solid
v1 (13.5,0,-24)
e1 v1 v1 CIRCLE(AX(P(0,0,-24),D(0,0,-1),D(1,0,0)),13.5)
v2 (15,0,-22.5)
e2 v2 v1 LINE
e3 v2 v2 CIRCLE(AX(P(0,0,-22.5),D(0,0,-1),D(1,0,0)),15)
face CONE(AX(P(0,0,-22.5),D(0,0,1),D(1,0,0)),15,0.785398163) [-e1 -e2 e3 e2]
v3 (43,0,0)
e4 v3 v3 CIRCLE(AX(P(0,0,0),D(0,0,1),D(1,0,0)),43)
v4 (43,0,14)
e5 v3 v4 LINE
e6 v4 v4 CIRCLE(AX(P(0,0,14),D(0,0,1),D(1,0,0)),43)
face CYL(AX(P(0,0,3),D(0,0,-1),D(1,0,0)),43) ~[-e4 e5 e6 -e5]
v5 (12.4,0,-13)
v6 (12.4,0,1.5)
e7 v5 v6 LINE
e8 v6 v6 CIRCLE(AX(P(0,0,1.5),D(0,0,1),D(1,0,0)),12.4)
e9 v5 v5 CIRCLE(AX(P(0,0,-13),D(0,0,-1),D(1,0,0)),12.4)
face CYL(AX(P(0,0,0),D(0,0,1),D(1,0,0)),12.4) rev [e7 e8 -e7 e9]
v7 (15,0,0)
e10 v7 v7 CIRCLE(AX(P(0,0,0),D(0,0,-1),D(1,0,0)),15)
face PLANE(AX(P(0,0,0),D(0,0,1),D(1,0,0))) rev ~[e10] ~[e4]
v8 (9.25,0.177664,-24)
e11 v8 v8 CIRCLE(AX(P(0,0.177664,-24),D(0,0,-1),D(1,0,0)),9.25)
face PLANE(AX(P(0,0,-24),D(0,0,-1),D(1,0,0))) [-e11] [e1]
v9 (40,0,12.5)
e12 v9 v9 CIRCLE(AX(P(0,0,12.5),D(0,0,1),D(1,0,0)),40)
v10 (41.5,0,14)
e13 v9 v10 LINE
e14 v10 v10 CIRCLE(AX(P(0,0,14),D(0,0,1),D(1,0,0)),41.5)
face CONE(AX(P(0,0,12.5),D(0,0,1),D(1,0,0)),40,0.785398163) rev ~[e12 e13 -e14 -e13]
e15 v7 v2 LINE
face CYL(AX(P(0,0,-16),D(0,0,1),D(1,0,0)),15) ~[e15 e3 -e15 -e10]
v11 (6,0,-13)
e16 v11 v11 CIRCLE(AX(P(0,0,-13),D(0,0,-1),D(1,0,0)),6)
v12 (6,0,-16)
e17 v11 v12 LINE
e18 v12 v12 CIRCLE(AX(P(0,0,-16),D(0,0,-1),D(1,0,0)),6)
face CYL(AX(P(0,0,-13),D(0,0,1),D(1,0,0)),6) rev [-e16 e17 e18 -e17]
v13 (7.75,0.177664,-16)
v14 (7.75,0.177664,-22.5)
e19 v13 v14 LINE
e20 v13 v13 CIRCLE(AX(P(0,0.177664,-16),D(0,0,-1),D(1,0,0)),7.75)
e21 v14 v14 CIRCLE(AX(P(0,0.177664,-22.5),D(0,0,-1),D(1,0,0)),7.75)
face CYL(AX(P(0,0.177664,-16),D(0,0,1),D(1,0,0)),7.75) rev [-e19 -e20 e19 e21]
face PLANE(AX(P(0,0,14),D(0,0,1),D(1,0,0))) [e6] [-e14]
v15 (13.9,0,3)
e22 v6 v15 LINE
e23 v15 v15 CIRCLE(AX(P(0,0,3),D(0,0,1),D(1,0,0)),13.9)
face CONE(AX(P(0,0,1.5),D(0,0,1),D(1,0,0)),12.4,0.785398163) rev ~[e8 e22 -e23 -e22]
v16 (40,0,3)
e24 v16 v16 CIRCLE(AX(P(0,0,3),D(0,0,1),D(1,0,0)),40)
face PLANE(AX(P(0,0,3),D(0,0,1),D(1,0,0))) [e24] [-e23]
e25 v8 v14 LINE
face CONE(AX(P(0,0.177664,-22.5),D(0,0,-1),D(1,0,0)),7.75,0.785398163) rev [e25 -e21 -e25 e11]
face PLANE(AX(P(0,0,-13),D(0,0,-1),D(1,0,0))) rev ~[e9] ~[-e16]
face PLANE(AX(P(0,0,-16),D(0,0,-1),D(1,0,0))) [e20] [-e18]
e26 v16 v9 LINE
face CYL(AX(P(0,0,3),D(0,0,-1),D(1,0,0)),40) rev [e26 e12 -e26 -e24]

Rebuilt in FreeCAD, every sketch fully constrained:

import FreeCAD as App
import Part
import Sketcher

V = App.Vector
Q = App.Units.Quantity


def edges_at(feature, points):
    """Names of the edges that pass closest to the given points."""
    edges = feature.Shape.Edges
    near = lambda p: min(range(len(edges)), key=lambda i: edges[i].distToShape(Part.Vertex(*p))[0])
    return sorted({f"Edge{near(p) + 1}" for p in points})

doc = App.newDocument("Part")
body = doc.addObject("PartDesign::Body", "Body")

sketch1 = body.newObject("Sketcher::SketchObject", "Sketch")
sketch1.AttachmentSupport = (doc.getObject("XY_Plane"), [""])
sketch1.MapMode = "FlatFace"
sketch1.addGeometry(Part.Circle(V(0, 0, 0), V(0, 0, 1), 43), False)
sketch1.addConstraint([
    Sketcher.Constraint("Coincident", 0, 3, -1, 1),
    Sketcher.Constraint("Diameter", 0, Q("86 mm")),
])
pad1 = body.newObject("PartDesign::Pad", "Pad")
pad1.Profile = sketch1
pad1.Length = 3

sketch2 = body.newObject("Sketcher::SketchObject", "Sketch001")
sketch2.AttachmentSupport = (doc.getObject("XY_Plane"), [""])
sketch2.MapMode = "FlatFace"
sketch2.AttachmentOffset = App.Placement(V(0, 0, 3), App.Rotation())
sketch2.addGeometry([
    Part.Circle(V(0, 0, 0), V(0, 0, 1), 43),
    Part.Circle(V(0, 0, 0), V(0, 0, 1), 40),
], False)
sketch2.addConstraint([
    Sketcher.Constraint("Coincident", 0, 3, -1, 1),
    Sketcher.Constraint("Coincident", 1, 3, -1, 1),
    Sketcher.Constraint("Diameter", 0, Q("86 mm")),
    Sketcher.Constraint("Diameter", 1, Q("80 mm")),
])
pad2 = body.newObject("PartDesign::Pad", "Pad001")
pad2.Profile = sketch2
pad2.Length = 11

sketch3 = body.newObject("Sketcher::SketchObject", "Sketch002")
sketch3.AttachmentSupport = (doc.getObject("XY_Plane"), [""])
sketch3.MapMode = "FlatFace"
sketch3.AttachmentOffset = App.Placement(V(0, 0, 3), App.Rotation())
sketch3.addGeometry(Part.Circle(V(0, 0, 0), V(0, 0, 1), 12), False)
sketch3.addConstraint([
    Sketcher.Constraint("Coincident", 0, 3, -1, 1),
    Sketcher.Constraint("Diameter", 0, Q("24.8 mm")),
])
pocket1 = body.newObject("PartDesign::Pocket", "Pocket")
pocket1.Profile = sketch3
pocket1.Length = 5

sketch4 = body.newObject("Sketcher::SketchObject", "Sketch003")
sketch4.AttachmentSupport = (doc.getObject("XY_Plane"), [""])
sketch4.MapMode = "FlatFace"
sketch4.addGeometry([
    Part.Circle(V(0, 0, 0), V(0, 0, 1), 15),
    Part.Circle(V(0, 0, 0), V(0, 0, 1), 12),
], False)
sketch4.addConstraint([
    Sketcher.Constraint("Coincident", 0, 3, -1, 1),
    Sketcher.Constraint("Coincident", 1, 3, -1, 1),
    Sketcher.Constraint("Diameter", 0, Q("30 mm")),
    Sketcher.Constraint("Diameter", 1, Q("24.8 mm")),
])
pad3 = body.newObject("PartDesign::Pad", "Pad002")
pad3.Profile = sketch4
pad3.Length = 13
pad3.Reversed = True

sketch5 = body.newObject("Sketcher::SketchObject", "Sketch004")
sketch5.AttachmentSupport = (doc.getObject("XY_Plane"), [""])
sketch5.MapMode = "FlatFace"
sketch5.AttachmentOffset = App.Placement(V(0, 0, -13), App.Rotation())
sketch5.addGeometry([
    Part.Circle(V(0, 0, 0), V(0, 0, 1), 15),
    Part.Circle(V(0, 0, 0), V(0, 0, 1), 6),
], False)
sketch5.addConstraint([
    Sketcher.Constraint("Coincident", 0, 3, -1, 1),
    Sketcher.Constraint("Coincident", 1, 3, -1, 1),
    Sketcher.Constraint("Diameter", 0, Q("30 mm")),
    Sketcher.Constraint("Diameter", 1, Q("12 mm")),
])
pad4 = body.newObject("PartDesign::Pad", "Pad003")
pad4.Profile = sketch5
pad4.Length = 3
pad4.Reversed = True

sketch6 = body.newObject("Sketcher::SketchObject", "Sketch005")
sketch6.AttachmentSupport = (doc.getObject("XY_Plane"), [""])
sketch6.MapMode = "FlatFace"
sketch6.AttachmentOffset = App.Placement(V(0, 0, -16), App.Rotation())
sketch6.addGeometry([
    Part.Circle(V(0, 0, 0), V(0, 0, 1), 15),
    Part.Circle(V(0, 0, 0), V(0, 0, 1), 8),
], False)
sketch6.addConstraint([
    Sketcher.Constraint("Coincident", 0, 3, -1, 1),
    Sketcher.Constraint("PointOnObject", 1, 3, -2),
    Sketcher.Constraint("Diameter", 0, Q("30 mm")),
    Sketcher.Constraint("Diameter", 1, Q("15.5 mm")),
    Sketcher.Constraint("DistanceY", -1, 1, 1, 3, Q("0.177664 mm")),
])
pad5 = body.newObject("PartDesign::Pad", "Pad004")
pad5.Profile = sketch6
pad5.Length = 8
pad5.Reversed = True
doc.recompute()

chamfer = body.newObject("PartDesign::Chamfer", "Chamfer")
chamfer.Base = (pad5, edges_at(pad5, [(-15, 0, -24)]))
chamfer.Size = 1.5
doc.recompute()

chamfer2 = body.newObject("PartDesign::Chamfer", "Chamfer001")
chamfer2.Base = (chamfer, edges_at(chamfer, [(-7.75, 0.178, -24)]))
chamfer2.Size = 1.5
doc.recompute()

chamfer3 = body.newObject("PartDesign::Chamfer", "Chamfer002")
chamfer3.Base = (chamfer2, edges_at(chamfer2, [(-12.4, 0, 3)]))
chamfer3.Size = 1.5
doc.recompute()

chamfer4 = body.newObject("PartDesign::Chamfer", "Chamfer003")
chamfer4.Base = (chamfer3, edges_at(chamfer3, [(-40, 0, 14)]))
chamfer4.Size = 1.5

doc.recompute()
